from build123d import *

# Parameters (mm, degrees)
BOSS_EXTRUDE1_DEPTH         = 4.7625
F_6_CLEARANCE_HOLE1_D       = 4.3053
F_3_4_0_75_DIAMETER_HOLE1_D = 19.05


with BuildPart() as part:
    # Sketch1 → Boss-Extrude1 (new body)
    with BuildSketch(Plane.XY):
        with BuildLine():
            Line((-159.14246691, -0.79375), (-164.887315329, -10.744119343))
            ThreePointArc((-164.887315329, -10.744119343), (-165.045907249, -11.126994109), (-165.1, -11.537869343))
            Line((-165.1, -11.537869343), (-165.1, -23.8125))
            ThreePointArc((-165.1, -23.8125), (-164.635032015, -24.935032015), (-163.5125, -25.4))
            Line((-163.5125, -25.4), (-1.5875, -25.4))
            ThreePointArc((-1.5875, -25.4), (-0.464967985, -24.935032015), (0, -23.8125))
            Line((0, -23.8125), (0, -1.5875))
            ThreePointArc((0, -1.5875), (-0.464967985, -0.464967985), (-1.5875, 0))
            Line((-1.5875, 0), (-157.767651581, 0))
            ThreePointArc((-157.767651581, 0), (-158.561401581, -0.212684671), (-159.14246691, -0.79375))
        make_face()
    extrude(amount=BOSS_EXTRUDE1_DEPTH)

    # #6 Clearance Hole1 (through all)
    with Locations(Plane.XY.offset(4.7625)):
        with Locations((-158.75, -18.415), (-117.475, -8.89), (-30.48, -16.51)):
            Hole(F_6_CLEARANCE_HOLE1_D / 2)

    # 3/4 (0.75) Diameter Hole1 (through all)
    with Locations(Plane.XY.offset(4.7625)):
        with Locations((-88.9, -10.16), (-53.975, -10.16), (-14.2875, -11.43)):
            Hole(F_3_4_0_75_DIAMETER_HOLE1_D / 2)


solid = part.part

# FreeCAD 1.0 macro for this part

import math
import FreeCAD as App
import Part
import Sketcher
Q = App.Units.Quantity

doc = App.newDocument("Part")
body = doc.addObject("PartDesign::Body", "Body")

# Sketch on XY plane
sketch1 = doc.addObject("Sketcher::SketchObject", "Sketch")
body.addObject(sketch1)
sketch1.AttachmentSupport = (doc.XY_Plane, [""])
sketch1.MapMode = "FlatFace"
sketch1.addGeometry([
    Part.LineSegment(App.Vector(-159.142467, -0.79375, 0), App.Vector(-164.887315, -10.744119, 0)),  # 0
    Part.ArcOfCircle(Part.Circle(App.Vector(-163.5125, -11.537869, 0), App.Vector(0, 0, 1), 1.5875), math.radians(150), math.radians(180)),  # 1
    Part.LineSegment(App.Vector(-165.1, -11.537869, 0), App.Vector(-165.1, -23.8125, 0)),  # 2
    Part.ArcOfCircle(Part.Circle(App.Vector(-163.5125, -23.8125, 0), App.Vector(0, 0, 1), 1.5875), math.radians(180), math.radians(270)),  # 3
    Part.LineSegment(App.Vector(-163.5125, -25.4, 0), App.Vector(-1.5875, -25.4, 0)),  # 4
    Part.ArcOfCircle(Part.Circle(App.Vector(-1.5875, -23.8125, 0), App.Vector(0, 0, 1), 1.5875), math.radians(-90), math.radians(0)),  # 5
    Part.LineSegment(App.Vector(0, -23.8125, 0), App.Vector(0, -1.5875, 0)),  # 6
    Part.ArcOfCircle(Part.Circle(App.Vector(-1.5875, -1.5875, 0), App.Vector(0, 0, 1), 1.5875), math.radians(0), math.radians(90)),  # 7
    Part.LineSegment(App.Vector(-1.5875, 0, 0), App.Vector(-157.767652, 0, 0)),  # 8
    Part.ArcOfCircle(Part.Circle(App.Vector(-157.767652, -1.5875, 0), App.Vector(0, 0, 1), 1.5875), math.radians(90), math.radians(150)),  # 9
], False)
sketch1.addConstraint([
    Sketcher.Constraint("Tangent", 0, 2, 1, 1),
    Sketcher.Constraint("Tangent", 1, 2, 2, 1),
    Sketcher.Constraint("Tangent", 2, 2, 3, 1),
    Sketcher.Constraint("Tangent", 3, 2, 4, 1),
    Sketcher.Constraint("Tangent", 4, 2, 5, 1),
    Sketcher.Constraint("Tangent", 5, 2, 6, 1),
    Sketcher.Constraint("Tangent", 6, 2, 7, 1),
    Sketcher.Constraint("Tangent", 7, 2, 8, 1),
    Sketcher.Constraint("Tangent", 8, 2, 9, 1),
    Sketcher.Constraint("Tangent", 9, 2, 0, 1),
    Sketcher.Constraint("Vertical", 2),
    Sketcher.Constraint("Horizontal", 4),
    Sketcher.Constraint("Vertical", 6),
    Sketcher.Constraint("Horizontal", 8),
    Sketcher.Constraint("Equal", 1, 3),
    Sketcher.Constraint("Equal", 3, 5),
    Sketcher.Constraint("Equal", 5, 7),
    Sketcher.Constraint("Equal", 7, 9),
    Sketcher.Constraint("PointOnObject", 5, 2, -2),
    Sketcher.Constraint("PointOnObject", 7, 2, -1),
    Sketcher.Constraint("DistanceY", 3, 2, -1, 1, Q("1 in")),
    Sketcher.Constraint("Angle", 0, Q("-120 deg")),
    Sketcher.Constraint("Radius", 1, Q("0.0625 in")),
    Sketcher.Constraint("DistanceX", 1, 2, -1, 1, Q("6.5 in")),
    Sketcher.Constraint("DistanceX", 8, 2, 8, 1, 156.180152),
])
pad1 = doc.addObject("PartDesign::Pad", "Pad")
body.addObject(pad1)
pad1.Profile = sketch1
pad1.Length = Q("0.1875 in")

# Sketch on XY plane
sketch2 = doc.addObject("Sketcher::SketchObject", "Sketch001")
body.addObject(sketch2)
sketch2.AttachmentSupport = (doc.XY_Plane, [""])
sketch2.MapMode = "FlatFace"
sketch2.AttachmentOffset = App.Placement(App.Vector(0, 0, 0.1875 * 25.4), App.Rotation())
sketch2.addGeometry([
    Part.Circle(App.Vector(-158.75, -18.415, 0), App.Vector(0, 0, 1), 2.15265),
    Part.Circle(App.Vector(-117.475, -8.89, 0), App.Vector(0, 0, 1), 2.15265),
    Part.Circle(App.Vector(-30.48, -16.51, 0), App.Vector(0, 0, 1), 2.15265),
], False)
sketch2.addConstraint([
    Sketcher.Constraint("Equal", 0, 1),
    Sketcher.Constraint("Equal", 1, 2),
    Sketcher.Constraint("Diameter", 0, Q("0.1695 in")),
    Sketcher.Constraint("DistanceX", 2, 3, -1, 1, Q("1.2 in")),
    Sketcher.Constraint("DistanceY", 2, 3, 1, 3, Q("0.3 in")),
    Sketcher.Constraint("DistanceX", 0, 3, -1, 1, Q("6.25 in")),
    Sketcher.Constraint("DistanceY", 1, 3, -1, 1, Q("0.35 in")),
    Sketcher.Constraint("DistanceY", 0, 3, -1, 1, Q("0.725 in")),
    Sketcher.Constraint("DistanceX", 1, 3, -1, 1, Q("4.625 in")),
])
doc.recompute()
hole = doc.addObject("PartDesign::Hole", "Hole")
body.addObject(hole)
hole.Profile = sketch2
hole.ThreadType = "None"
hole.Diameter = Q("0.1695 in")
hole.DepthType = "ThroughAll"

# Sketch on XY plane
sketch3 = doc.addObject("Sketcher::SketchObject", "Sketch002")
body.addObject(sketch3)
sketch3.AttachmentSupport = (doc.XY_Plane, [""])
sketch3.MapMode = "FlatFace"
sketch3.AttachmentOffset = App.Placement(App.Vector(0, 0, 0.1875 * 25.4), App.Rotation())
sketch3.addGeometry([
    Part.Circle(App.Vector(-88.9, -10.16, 0), App.Vector(0, 0, 1), 9.525),
    Part.Circle(App.Vector(-53.975, -10.16, 0), App.Vector(0, 0, 1), 9.525),
    Part.Circle(App.Vector(-14.2875, -11.43, 0), App.Vector(0, 0, 1), 9.525),
], False)
sketch3.addConstraint([
    Sketcher.Constraint("Equal", 0, 1),
    Sketcher.Constraint("Equal", 1, 2),
    Sketcher.Constraint("Horizontal", 0, 3, 1, 3),
    Sketcher.Constraint("Diameter", 0, Q("0.75 in")),
    Sketcher.Constraint("DistanceX", 0, 3, -1, 1, Q("3.5 in")),
    Sketcher.Constraint("DistanceY", 0, 3, -1, 1, Q("0.4 in")),
    Sketcher.Constraint("DistanceY", 2, 3, -1, 1, Q("0.45 in")),
    Sketcher.Constraint("DistanceX", 1, 3, -1, 1, Q("2.125 in")),
    Sketcher.Constraint("DistanceX", 2, 3, -1, 1, Q("0.5625 in")),
])
doc.recompute()
hole2 = doc.addObject("PartDesign::Hole", "Hole001")
body.addObject(hole2)
hole2.Profile = sketch3
hole2.ThreadType = "None"
hole2.Diameter = Q("0.75 in")
hole2.DepthType = "ThroughAll"

doc.recompute()
